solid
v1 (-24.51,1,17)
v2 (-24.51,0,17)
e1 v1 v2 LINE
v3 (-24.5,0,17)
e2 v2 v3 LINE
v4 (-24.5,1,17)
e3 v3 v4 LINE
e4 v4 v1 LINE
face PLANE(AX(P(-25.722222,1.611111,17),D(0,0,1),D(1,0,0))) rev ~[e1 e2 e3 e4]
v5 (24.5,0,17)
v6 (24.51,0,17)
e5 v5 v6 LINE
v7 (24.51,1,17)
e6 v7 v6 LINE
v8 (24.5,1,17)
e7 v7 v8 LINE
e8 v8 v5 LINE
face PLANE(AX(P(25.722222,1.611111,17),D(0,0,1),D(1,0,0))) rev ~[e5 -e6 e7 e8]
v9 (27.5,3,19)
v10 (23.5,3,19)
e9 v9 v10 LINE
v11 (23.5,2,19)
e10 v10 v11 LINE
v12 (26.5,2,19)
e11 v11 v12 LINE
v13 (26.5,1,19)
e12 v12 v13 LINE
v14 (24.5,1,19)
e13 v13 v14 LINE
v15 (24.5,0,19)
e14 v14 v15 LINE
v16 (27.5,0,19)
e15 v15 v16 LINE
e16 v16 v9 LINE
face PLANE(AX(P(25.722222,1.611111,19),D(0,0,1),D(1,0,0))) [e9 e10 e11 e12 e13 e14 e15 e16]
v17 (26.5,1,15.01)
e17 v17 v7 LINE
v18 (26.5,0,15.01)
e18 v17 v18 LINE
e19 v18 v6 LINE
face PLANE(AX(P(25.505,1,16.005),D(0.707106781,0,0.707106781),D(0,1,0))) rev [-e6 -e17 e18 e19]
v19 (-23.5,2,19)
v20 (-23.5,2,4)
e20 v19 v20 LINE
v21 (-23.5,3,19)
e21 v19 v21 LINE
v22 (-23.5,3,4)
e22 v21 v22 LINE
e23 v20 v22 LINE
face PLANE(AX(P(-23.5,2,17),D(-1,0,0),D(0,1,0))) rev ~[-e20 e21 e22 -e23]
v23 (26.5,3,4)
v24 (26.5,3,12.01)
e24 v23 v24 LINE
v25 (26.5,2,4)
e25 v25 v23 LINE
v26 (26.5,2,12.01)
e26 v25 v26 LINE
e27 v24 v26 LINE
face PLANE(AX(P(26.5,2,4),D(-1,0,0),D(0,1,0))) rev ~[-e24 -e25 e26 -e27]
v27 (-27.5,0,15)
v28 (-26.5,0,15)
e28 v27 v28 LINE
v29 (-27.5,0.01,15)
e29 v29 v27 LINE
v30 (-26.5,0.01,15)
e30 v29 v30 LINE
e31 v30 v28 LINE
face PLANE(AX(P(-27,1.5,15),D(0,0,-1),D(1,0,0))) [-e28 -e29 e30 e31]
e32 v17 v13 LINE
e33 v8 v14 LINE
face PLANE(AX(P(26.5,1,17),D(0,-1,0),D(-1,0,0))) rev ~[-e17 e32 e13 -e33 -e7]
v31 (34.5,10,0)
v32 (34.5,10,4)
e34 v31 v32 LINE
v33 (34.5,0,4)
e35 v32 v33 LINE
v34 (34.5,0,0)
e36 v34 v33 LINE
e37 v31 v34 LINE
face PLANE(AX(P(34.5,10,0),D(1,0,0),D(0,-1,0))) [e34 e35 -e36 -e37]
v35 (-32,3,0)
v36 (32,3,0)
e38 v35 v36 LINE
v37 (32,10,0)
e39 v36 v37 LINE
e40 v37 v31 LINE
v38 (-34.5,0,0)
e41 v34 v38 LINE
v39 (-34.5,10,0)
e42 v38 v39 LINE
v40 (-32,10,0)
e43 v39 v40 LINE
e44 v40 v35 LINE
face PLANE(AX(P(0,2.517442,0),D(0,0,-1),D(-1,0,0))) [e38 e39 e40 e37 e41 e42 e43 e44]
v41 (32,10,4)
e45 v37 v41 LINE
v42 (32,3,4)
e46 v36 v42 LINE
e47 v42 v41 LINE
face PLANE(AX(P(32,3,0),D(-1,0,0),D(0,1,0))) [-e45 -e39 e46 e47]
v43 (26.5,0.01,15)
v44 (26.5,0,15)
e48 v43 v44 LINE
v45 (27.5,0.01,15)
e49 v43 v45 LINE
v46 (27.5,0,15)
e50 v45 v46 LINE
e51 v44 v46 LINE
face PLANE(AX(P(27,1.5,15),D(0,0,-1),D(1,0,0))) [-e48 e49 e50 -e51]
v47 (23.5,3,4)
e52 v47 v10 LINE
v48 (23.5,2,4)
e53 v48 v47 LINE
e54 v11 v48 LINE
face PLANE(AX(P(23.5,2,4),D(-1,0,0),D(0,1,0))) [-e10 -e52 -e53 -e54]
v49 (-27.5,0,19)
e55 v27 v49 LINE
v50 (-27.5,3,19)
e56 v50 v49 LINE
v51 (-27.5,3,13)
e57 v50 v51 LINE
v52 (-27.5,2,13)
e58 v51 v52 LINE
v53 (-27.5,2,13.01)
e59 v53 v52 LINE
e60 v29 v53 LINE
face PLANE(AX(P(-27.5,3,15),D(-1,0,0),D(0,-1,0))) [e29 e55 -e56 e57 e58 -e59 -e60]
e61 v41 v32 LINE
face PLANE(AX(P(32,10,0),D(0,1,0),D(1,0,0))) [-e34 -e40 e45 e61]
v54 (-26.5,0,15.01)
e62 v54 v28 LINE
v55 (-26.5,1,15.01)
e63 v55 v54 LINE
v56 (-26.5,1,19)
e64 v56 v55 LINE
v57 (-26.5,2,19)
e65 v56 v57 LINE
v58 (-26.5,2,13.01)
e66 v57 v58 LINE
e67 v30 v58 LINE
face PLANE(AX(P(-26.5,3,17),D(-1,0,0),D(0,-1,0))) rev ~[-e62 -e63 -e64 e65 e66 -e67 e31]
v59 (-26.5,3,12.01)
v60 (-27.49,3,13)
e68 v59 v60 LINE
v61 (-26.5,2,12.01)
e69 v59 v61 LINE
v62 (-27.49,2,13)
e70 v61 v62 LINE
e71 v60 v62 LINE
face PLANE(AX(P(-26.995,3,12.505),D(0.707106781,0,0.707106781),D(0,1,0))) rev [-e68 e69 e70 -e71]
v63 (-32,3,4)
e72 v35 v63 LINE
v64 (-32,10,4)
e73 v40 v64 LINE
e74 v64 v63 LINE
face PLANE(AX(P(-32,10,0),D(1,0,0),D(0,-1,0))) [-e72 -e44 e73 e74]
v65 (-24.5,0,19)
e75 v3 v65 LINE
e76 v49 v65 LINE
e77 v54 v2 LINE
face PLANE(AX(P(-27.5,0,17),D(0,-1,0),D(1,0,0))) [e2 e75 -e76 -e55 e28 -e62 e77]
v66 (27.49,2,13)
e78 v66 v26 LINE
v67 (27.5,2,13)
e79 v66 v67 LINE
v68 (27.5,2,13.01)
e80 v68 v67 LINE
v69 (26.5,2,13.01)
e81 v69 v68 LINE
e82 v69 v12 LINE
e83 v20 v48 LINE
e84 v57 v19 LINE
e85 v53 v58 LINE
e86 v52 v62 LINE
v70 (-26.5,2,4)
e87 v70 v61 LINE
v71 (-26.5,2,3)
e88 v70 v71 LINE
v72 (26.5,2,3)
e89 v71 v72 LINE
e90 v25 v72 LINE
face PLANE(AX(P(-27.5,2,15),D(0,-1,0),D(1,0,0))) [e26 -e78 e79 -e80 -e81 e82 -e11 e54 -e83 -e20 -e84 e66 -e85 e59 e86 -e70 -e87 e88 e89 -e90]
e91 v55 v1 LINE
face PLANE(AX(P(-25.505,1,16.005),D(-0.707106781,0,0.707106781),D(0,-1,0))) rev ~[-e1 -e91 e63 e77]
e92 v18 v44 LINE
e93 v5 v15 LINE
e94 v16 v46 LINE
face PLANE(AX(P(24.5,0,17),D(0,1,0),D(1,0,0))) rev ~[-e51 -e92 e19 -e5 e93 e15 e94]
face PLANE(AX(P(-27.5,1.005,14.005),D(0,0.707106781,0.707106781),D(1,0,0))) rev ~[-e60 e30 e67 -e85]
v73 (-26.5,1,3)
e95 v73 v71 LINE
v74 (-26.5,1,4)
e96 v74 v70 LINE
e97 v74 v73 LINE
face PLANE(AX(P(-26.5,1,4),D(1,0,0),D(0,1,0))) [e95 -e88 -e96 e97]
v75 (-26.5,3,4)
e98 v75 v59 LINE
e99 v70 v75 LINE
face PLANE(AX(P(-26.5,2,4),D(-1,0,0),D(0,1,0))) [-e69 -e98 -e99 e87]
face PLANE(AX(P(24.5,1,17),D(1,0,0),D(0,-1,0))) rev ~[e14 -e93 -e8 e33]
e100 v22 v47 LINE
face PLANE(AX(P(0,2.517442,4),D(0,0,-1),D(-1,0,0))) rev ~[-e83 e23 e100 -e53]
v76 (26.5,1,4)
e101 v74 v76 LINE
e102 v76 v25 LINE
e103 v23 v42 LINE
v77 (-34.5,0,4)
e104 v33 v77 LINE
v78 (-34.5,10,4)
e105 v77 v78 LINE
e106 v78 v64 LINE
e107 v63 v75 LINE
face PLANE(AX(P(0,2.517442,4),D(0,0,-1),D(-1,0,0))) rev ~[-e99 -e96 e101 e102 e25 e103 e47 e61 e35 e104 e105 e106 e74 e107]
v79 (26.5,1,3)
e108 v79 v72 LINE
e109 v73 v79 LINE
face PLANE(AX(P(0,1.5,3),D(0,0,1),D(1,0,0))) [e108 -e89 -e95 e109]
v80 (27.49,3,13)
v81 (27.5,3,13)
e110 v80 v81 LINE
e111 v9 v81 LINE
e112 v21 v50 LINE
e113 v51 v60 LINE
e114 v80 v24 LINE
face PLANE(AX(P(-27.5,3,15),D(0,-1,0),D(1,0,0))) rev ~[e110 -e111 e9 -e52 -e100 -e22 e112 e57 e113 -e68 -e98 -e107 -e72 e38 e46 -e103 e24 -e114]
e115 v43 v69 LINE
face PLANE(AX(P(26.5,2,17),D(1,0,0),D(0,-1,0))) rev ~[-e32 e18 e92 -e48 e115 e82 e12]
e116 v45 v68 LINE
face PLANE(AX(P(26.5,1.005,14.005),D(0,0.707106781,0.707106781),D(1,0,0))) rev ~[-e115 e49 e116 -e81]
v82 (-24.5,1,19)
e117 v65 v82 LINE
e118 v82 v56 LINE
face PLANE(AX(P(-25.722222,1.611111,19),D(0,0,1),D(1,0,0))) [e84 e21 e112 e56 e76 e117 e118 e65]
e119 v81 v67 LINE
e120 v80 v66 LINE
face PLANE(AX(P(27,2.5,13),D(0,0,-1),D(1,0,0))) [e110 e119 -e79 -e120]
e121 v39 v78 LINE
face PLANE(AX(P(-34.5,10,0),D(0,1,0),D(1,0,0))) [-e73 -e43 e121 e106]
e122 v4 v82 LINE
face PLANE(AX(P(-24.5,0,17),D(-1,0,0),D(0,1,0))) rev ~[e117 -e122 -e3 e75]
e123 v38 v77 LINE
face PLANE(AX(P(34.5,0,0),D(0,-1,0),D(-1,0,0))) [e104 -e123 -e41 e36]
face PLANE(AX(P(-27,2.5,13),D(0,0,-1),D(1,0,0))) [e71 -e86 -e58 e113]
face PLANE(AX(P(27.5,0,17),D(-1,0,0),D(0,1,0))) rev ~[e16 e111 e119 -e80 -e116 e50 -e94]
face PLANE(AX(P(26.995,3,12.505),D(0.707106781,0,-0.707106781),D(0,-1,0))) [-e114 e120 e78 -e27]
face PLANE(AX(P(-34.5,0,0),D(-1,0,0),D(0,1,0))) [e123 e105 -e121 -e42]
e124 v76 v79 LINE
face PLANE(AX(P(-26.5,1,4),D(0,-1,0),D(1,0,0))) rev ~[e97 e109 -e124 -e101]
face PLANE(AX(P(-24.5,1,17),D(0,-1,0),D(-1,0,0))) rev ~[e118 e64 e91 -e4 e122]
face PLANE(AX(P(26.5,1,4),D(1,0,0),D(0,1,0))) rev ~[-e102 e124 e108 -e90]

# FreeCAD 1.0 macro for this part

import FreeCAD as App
import Part
import Sketcher


def edges_at(feature, points):
    """Names of the edges that pass closest to the given points."""
    edges = feature.Shape.Edges
    near = lambda p: min(range(len(edges)), key=lambda i: edges[i].distToShape(Part.Vertex(*p))[0])
    return sorted({f"Edge{near(p) + 1}" for p in points})

doc = App.newDocument("Part")
body = doc.addObject("PartDesign::Body", "Body")

sketch1 = body.newObject("Sketcher::SketchObject", "Sketch")
sketch1.AttachmentSupport = (doc.getObject("XY_Plane"), [""])
sketch1.MapMode = "FlatFace"
sketch1.addGeometry([
    Part.LineSegment(App.Vector(34.5, 0, 0), App.Vector(34.5, 10, 0)),
    Part.LineSegment(App.Vector(34.5, 10, 0), App.Vector(32, 10, 0)),
    Part.LineSegment(App.Vector(32, 10, 0), App.Vector(32, 3, 0)),
    Part.LineSegment(App.Vector(32, 3, 0), App.Vector(-32, 3, 0)),
    Part.LineSegment(App.Vector(-32, 3, 0), App.Vector(-32, 10, 0)),
    Part.LineSegment(App.Vector(-32, 10, 0), App.Vector(-34.5, 10, 0)),
    Part.LineSegment(App.Vector(-34.5, 10, 0), App.Vector(-34.5, 0, 0)),
    Part.LineSegment(App.Vector(-34.5, 0, 0), App.Vector(34.5, 0, 0)),
], False)
sketch1.addConstraint([
    Sketcher.Constraint("Coincident", 0, 2, 1, 1),
    Sketcher.Constraint("Coincident", 1, 2, 2, 1),
    Sketcher.Constraint("Coincident", 2, 2, 3, 1),
    Sketcher.Constraint("Coincident", 3, 2, 4, 1),
    Sketcher.Constraint("Coincident", 4, 2, 5, 1),
    Sketcher.Constraint("Coincident", 5, 2, 6, 1),
    Sketcher.Constraint("Coincident", 6, 2, 7, 1),
    Sketcher.Constraint("Coincident", 7, 2, 0, 1),
    Sketcher.Constraint("Vertical", 0),
    Sketcher.Constraint("Horizontal", 1),
    Sketcher.Constraint("Vertical", 2),
    Sketcher.Constraint("Horizontal", 3),
    Sketcher.Constraint("Vertical", 4),
    Sketcher.Constraint("Horizontal", 5),
    Sketcher.Constraint("Vertical", 6),
    Sketcher.Constraint("Horizontal", 7),
    Sketcher.Constraint("Symmetric", 6, 2, 7, 2, -1, 1),
    Sketcher.Constraint("Symmetric", 1, 2, 4, 2, -2),
    Sketcher.Constraint("DistanceX", 3, 2, 3, 1, 64.0),
    Sketcher.Constraint("DistanceX", 7, 1, 7, 2, 69.0),
    Sketcher.Constraint("DistanceY", 0, 1, 0, 2, 10.0),
    Sketcher.Constraint("DistanceY", 2, 2, 2, 1, 7.0),
])
pad1 = body.newObject("PartDesign::Pad", "Pad")
pad1.Profile = sketch1
pad1.Length = 4

sketch2 = body.newObject("Sketcher::SketchObject", "Sketch001")
sketch2.AttachmentSupport = (doc.getObject("XY_Plane"), [""])
sketch2.MapMode = "FlatFace"
sketch2.AttachmentOffset = App.Placement(App.Vector(0, 0, 4), App.Rotation())
sketch2.addGeometry([
    Part.LineSegment(App.Vector(-26.5, 2, 0), App.Vector(-26.5, 1, 0)),
    Part.LineSegment(App.Vector(-26.5, 1, 0), App.Vector(26.5, 1, 0)),
    Part.LineSegment(App.Vector(26.5, 1, 0), App.Vector(26.5, 2, 0)),
    Part.LineSegment(App.Vector(26.5, 2, 0), App.Vector(-26.5, 2, 0)),
], False)
sketch2.addConstraint([
    Sketcher.Constraint("Coincident", 0, 2, 1, 1),
    Sketcher.Constraint("Coincident", 1, 2, 2, 1),
    Sketcher.Constraint("Coincident", 2, 2, 3, 1),
    Sketcher.Constraint("Coincident", 3, 2, 0, 1),
    Sketcher.Constraint("Vertical", 0),
    Sketcher.Constraint("Horizontal", 1),
    Sketcher.Constraint("Vertical", 2),
    Sketcher.Constraint("Horizontal", 3),
    Sketcher.Constraint("DistanceX", 1, 1, 1, 2, 53.0),
    Sketcher.Constraint("DistanceY", 0, 2, 0, 1, 1.0),
    Sketcher.Constraint("DistanceY", -1, 1, 0, 2, 1.0),
    Sketcher.Constraint("DistanceX", 0, 2, -1, 1, 26.5),
])
pocket1 = body.newObject("PartDesign::Pocket", "Pocket")
pocket1.Profile = sketch2
pocket1.Length = 1

sketch3 = body.newObject("Sketcher::SketchObject", "Sketch002")
sketch3.AttachmentSupport = (doc.getObject("XY_Plane"), [""])
sketch3.MapMode = "FlatFace"
sketch3.AttachmentOffset = App.Placement(App.Vector(0, 0, 4), App.Rotation())
sketch3.addGeometry([
    Part.LineSegment(App.Vector(-26.5, 3, 0), App.Vector(-26.5, 2, 0)),
    Part.LineSegment(App.Vector(-26.5, 2, 0), App.Vector(-23.5, 2, 0)),
    Part.LineSegment(App.Vector(-23.5, 2, 0), App.Vector(-23.5, 3, 0)),
    Part.LineSegment(App.Vector(-23.5, 3, 0), App.Vector(-26.5, 3, 0)),
    Part.LineSegment(App.Vector(23.5, 3, 0), App.Vector(23.5, 2, 0)),
    Part.LineSegment(App.Vector(23.5, 2, 0), App.Vector(26.5, 2, 0)),
    Part.LineSegment(App.Vector(26.5, 2, 0), App.Vector(26.5, 3, 0)),
    Part.LineSegment(App.Vector(26.5, 3, 0), App.Vector(23.5, 3, 0)),
], False)
sketch3.addConstraint([
    Sketcher.Constraint("Coincident", 0, 2, 1, 1),
    Sketcher.Constraint("Coincident", 1, 2, 2, 1),
    Sketcher.Constraint("Coincident", 2, 2, 3, 1),
    Sketcher.Constraint("Coincident", 3, 2, 0, 1),
    Sketcher.Constraint("Coincident", 4, 2, 5, 1),
    Sketcher.Constraint("Coincident", 5, 2, 6, 1),
    Sketcher.Constraint("Coincident", 6, 2, 7, 1),
    Sketcher.Constraint("Coincident", 7, 2, 4, 1),
    Sketcher.Constraint("Vertical", 0),
    Sketcher.Constraint("Horizontal", 1),
    Sketcher.Constraint("Vertical", 2),
    Sketcher.Constraint("Horizontal", 3),
    Sketcher.Constraint("Vertical", 4),
    Sketcher.Constraint("Horizontal", 5),
    Sketcher.Constraint("Vertical", 6),
    Sketcher.Constraint("Horizontal", 7),
    Sketcher.Constraint("Symmetric", 1, 2, 4, 2, -2),
    Sketcher.Constraint("Symmetric", 3, 2, 6, 2, -2),
    Sketcher.Constraint("DistanceX", 1, 1, 1, 2, 3.0),
    Sketcher.Constraint("DistanceY", 0, 2, 0, 1, 1.0),
    Sketcher.Constraint("DistanceY", -1, 1, 0, 2, 2.0),
    Sketcher.Constraint("DistanceX", 1, 2, 4, 2, 47.0),
])
pad2 = body.newObject("PartDesign::Pad", "Pad001")
pad2.Profile = sketch3
pad2.Length = 13

sketch4 = body.newObject("Sketcher::SketchObject", "Sketch003")
sketch4.AttachmentSupport = (doc.getObject("XY_Plane"), [""])
sketch4.MapMode = "FlatFace"
sketch4.AttachmentOffset = App.Placement(App.Vector(0, 0, 17), App.Rotation())
sketch4.addGeometry([
    Part.LineSegment(App.Vector(-23.5, 3, 0), App.Vector(-27.5, 3, 0)),
    Part.LineSegment(App.Vector(-27.5, 3, 0), App.Vector(-27.5, 0, 0)),
    Part.LineSegment(App.Vector(-27.5, 0, 0), App.Vector(-24.5, 0, 0)),
    Part.LineSegment(App.Vector(-24.5, 0, 0), App.Vector(-24.5, 1, 0)),
    Part.LineSegment(App.Vector(-24.5, 1, 0), App.Vector(-26.5, 1, 0)),
    Part.LineSegment(App.Vector(-26.5, 1, 0), App.Vector(-26.5, 2, 0)),
    Part.LineSegment(App.Vector(-26.5, 2, 0), App.Vector(-23.5, 2, 0)),
    Part.LineSegment(App.Vector(-23.5, 2, 0), App.Vector(-23.5, 3, 0)),
    Part.LineSegment(App.Vector(27.5, 3, 0), App.Vector(23.5, 3, 0)),
    Part.LineSegment(App.Vector(23.5, 3, 0), App.Vector(23.5, 2, 0)),
    Part.LineSegment(App.Vector(23.5, 2, 0), App.Vector(26.5, 2, 0)),
    Part.LineSegment(App.Vector(26.5, 2, 0), App.Vector(26.5, 1, 0)),
    Part.LineSegment(App.Vector(26.5, 1, 0), App.Vector(24.5, 1, 0)),
    Part.LineSegment(App.Vector(24.5, 1, 0), App.Vector(24.5, 0, 0)),
    Part.LineSegment(App.Vector(24.5, 0, 0), App.Vector(27.5, 0, 0)),
    Part.LineSegment(App.Vector(27.5, 0, 0), App.Vector(27.5, 3, 0)),
], False)
sketch4.addConstraint([
    Sketcher.Constraint("Coincident", 0, 2, 1, 1),
    Sketcher.Constraint("Coincident", 1, 2, 2, 1),
    Sketcher.Constraint("Coincident", 2, 2, 3, 1),
    Sketcher.Constraint("Coincident", 3, 2, 4, 1),
    Sketcher.Constraint("Coincident", 4, 2, 5, 1),
    Sketcher.Constraint("Coincident", 5, 2, 6, 1),
    Sketcher.Constraint("Coincident", 6, 2, 7, 1),
    Sketcher.Constraint("Coincident", 7, 2, 0, 1),
    Sketcher.Constraint("Coincident", 8, 2, 9, 1),
    Sketcher.Constraint("Coincident", 9, 2, 10, 1),
    Sketcher.Constraint("Coincident", 10, 2, 11, 1),
    Sketcher.Constraint("Coincident", 11, 2, 12, 1),
    Sketcher.Constraint("Coincident", 12, 2, 13, 1),
    Sketcher.Constraint("Coincident", 13, 2, 14, 1),
    Sketcher.Constraint("Coincident", 14, 2, 15, 1),
    Sketcher.Constraint("Coincident", 15, 2, 8, 1),
    Sketcher.Constraint("Horizontal", 0),
    Sketcher.Constraint("Vertical", 1),
    Sketcher.Constraint("Horizontal", 2),
    Sketcher.Constraint("Vertical", 3),
    Sketcher.Constraint("Horizontal", 4),
    Sketcher.Constraint("Vertical", 5),
    Sketcher.Constraint("Horizontal", 6),
    Sketcher.Constraint("Vertical", 7),
    Sketcher.Constraint("Horizontal", 8),
    Sketcher.Constraint("Vertical", 9),
    Sketcher.Constraint("Horizontal", 10),
    Sketcher.Constraint("Vertical", 11),
    Sketcher.Constraint("Horizontal", 12),
    Sketcher.Constraint("Vertical", 13),
    Sketcher.Constraint("Horizontal", 14),
    Sketcher.Constraint("Vertical", 15),
    Sketcher.Constraint("Symmetric", 2, 2, 13, 2, -1, 1),
    Sketcher.Constraint("Symmetric", 7, 2, 8, 2, -2),
    Sketcher.Constraint("Symmetric", 5, 2, 10, 2, -2),
    Sketcher.Constraint("Symmetric", 1, 2, 14, 2, -2),
    Sketcher.Constraint("Horizontal", 4, 2, 11, 2),
    Sketcher.Constraint("Equal", 2, 6),
    Sketcher.Constraint("Equal", 14, 1),
    Sketcher.Constraint("Equal", 3, 5),
    Sketcher.Constraint("Equal", 5, 7),
    Sketcher.Constraint("DistanceX", 0, 2, 0, 1, 4.0),
    Sketcher.Constraint("DistanceX", 2, 1, 2, 2, 3.0),
    Sketcher.Constraint("DistanceX", 7, 2, 8, 2, 47.0),
])
pad3 = body.newObject("PartDesign::Pad", "Pad002")
pad3.Profile = sketch4
pad3.Length = 2

sketch5 = body.newObject("Sketcher::SketchObject", "Sketch004")
sketch5.AttachmentSupport = (doc.getObject("XY_Plane"), [""])
sketch5.MapMode = "FlatFace"
sketch5.AttachmentOffset = App.Placement(App.Vector(0, 0, 17), App.Rotation())
sketch5.addGeometry([
    Part.LineSegment(App.Vector(-27.5, 0, 0), App.Vector(-27.5, 3, 0)),
    Part.LineSegment(App.Vector(-27.5, 3, 0), App.Vector(-26.5, 3, 0)),
    Part.LineSegment(App.Vector(-26.5, 3, 0), App.Vector(-26.5, 0, 0)),
    Part.LineSegment(App.Vector(-26.5, 0, 0), App.Vector(-27.5, 0, 0)),
    Part.LineSegment(App.Vector(26.5, 0, 0), App.Vector(26.5, 3, 0)),
    Part.LineSegment(App.Vector(26.5, 3, 0), App.Vector(27.5, 3, 0)),
    Part.LineSegment(App.Vector(27.5, 3, 0), App.Vector(27.5, 0, 0)),
    Part.LineSegment(App.Vector(27.5, 0, 0), App.Vector(26.5, 0, 0)),
], False)
sketch5.addConstraint([
    Sketcher.Constraint("Coincident", 0, 2, 1, 1),
    Sketcher.Constraint("Coincident", 1, 2, 2, 1),
    Sketcher.Constraint("Coincident", 2, 2, 3, 1),
    Sketcher.Constraint("Coincident", 3, 2, 0, 1),
    Sketcher.Constraint("Coincident", 4, 2, 5, 1),
    Sketcher.Constraint("Coincident", 5, 2, 6, 1),
    Sketcher.Constraint("Coincident", 6, 2, 7, 1),
    Sketcher.Constraint("Coincident", 7, 2, 4, 1),
    Sketcher.Constraint("Vertical", 0),
    Sketcher.Constraint("Horizontal", 1),
    Sketcher.Constraint("Vertical", 2),
    Sketcher.Constraint("Horizontal", 3),
    Sketcher.Constraint("Vertical", 4),
    Sketcher.Constraint("Horizontal", 5),
    Sketcher.Constraint("Vertical", 6),
    Sketcher.Constraint("Horizontal", 7),
    Sketcher.Constraint("Symmetric", 3, 2, 6, 2, -1, 1),
    Sketcher.Constraint("Symmetric", 1, 2, 4, 2, -2),
    Sketcher.Constraint("PointOnObject", 2, 2, -1),
    Sketcher.Constraint("DistanceX", 1, 1, 1, 2, 1.0),
    Sketcher.Constraint("DistanceY", 0, 1, 0, 2, 3.0),
    Sketcher.Constraint("DistanceX", 1, 2, 4, 2, 53.0),
])
pad4 = body.newObject("PartDesign::Pad", "Pad003")
pad4.Profile = sketch5
pad4.Length = 2
pad4.Reversed = True
doc.recompute()

chamfer = body.newObject("PartDesign::Chamfer", "Chamfer")
chamfer.Base = (pad4, edges_at(pad4, [(-26.5, 0.5, 17), (26.5, 0.5, 17)]))
chamfer.Size = 1.99

sketch6 = body.newObject("Sketcher::SketchObject", "Sketch005")
sketch6.AttachmentSupport = (doc.getObject("XY_Plane"), [""])
sketch6.MapMode = "FlatFace"
sketch6.AttachmentOffset = App.Placement(App.Vector(0, 0, 15), App.Rotation())
sketch6.addGeometry([
    Part.LineSegment(App.Vector(-27.5, 2, 0), App.Vector(-27.5, 3, 0)),
    Part.LineSegment(App.Vector(-27.5, 3, 0), App.Vector(-26.5, 3, 0)),
    Part.LineSegment(App.Vector(-26.5, 3, 0), App.Vector(-26.5, 2, 0)),
    Part.LineSegment(App.Vector(-26.5, 2, 0), App.Vector(-27.5, 2, 0)),
    Part.LineSegment(App.Vector(26.5, 2, 0), App.Vector(26.5, 3, 0)),
    Part.LineSegment(App.Vector(26.5, 3, 0), App.Vector(27.5, 3, 0)),
    Part.LineSegment(App.Vector(27.5, 3, 0), App.Vector(27.5, 2, 0)),
    Part.LineSegment(App.Vector(27.5, 2, 0), App.Vector(26.5, 2, 0)),
], False)
sketch6.addConstraint([
    Sketcher.Constraint("Coincident", 0, 2, 1, 1),
    Sketcher.Constraint("Coincident", 1, 2, 2, 1),
    Sketcher.Constraint("Coincident", 2, 2, 3, 1),
    Sketcher.Constraint("Coincident", 3, 2, 0, 1),
    Sketcher.Constraint("Coincident", 4, 2, 5, 1),
    Sketcher.Constraint("Coincident", 5, 2, 6, 1),
    Sketcher.Constraint("Coincident", 6, 2, 7, 1),
    Sketcher.Constraint("Coincident", 7, 2, 4, 1),
    Sketcher.Constraint("Vertical", 0),
    Sketcher.Constraint("Horizontal", 1),
    Sketcher.Constraint("Vertical", 2),
    Sketcher.Constraint("Horizontal", 3),
    Sketcher.Constraint("Vertical", 4),
    Sketcher.Constraint("Horizontal", 5),
    Sketcher.Constraint("Vertical", 6),
    Sketcher.Constraint("Horizontal", 7),
    Sketcher.Constraint("Symmetric", 1, 2, 4, 2, -2),
    Sketcher.Constraint("Symmetric", 3, 2, 6, 2, -2),
    Sketcher.Constraint("Equal", 7, 0),
    Sketcher.Constraint("DistanceX", 1, 1, 1, 2, 1.0),
    Sketcher.Constraint("DistanceY", -1, 1, 0, 2, 3.0),
    Sketcher.Constraint("DistanceX", 1, 2, 4, 2, 53.0),
])
pad5 = body.newObject("PartDesign::Pad", "Pad004")
pad5.Profile = sketch6
pad5.Length = 2
pad5.Reversed = True
doc.recompute()

chamfer2 = body.newObject("PartDesign::Chamfer", "Chamfer001")
chamfer2.Base = (pad5, edges_at(pad5, [(27, 2, 15), (-27, 2, 15)]))
chamfer2.Size = 1.99
doc.recompute()

chamfer3 = body.newObject("PartDesign::Chamfer", "Chamfer002")
chamfer3.Base = (chamfer2, edges_at(chamfer2, [(-26.5, 2.5, 13), (26.5, 2.5, 13)]))
chamfer3.Size = 0.99

doc.recompute()
